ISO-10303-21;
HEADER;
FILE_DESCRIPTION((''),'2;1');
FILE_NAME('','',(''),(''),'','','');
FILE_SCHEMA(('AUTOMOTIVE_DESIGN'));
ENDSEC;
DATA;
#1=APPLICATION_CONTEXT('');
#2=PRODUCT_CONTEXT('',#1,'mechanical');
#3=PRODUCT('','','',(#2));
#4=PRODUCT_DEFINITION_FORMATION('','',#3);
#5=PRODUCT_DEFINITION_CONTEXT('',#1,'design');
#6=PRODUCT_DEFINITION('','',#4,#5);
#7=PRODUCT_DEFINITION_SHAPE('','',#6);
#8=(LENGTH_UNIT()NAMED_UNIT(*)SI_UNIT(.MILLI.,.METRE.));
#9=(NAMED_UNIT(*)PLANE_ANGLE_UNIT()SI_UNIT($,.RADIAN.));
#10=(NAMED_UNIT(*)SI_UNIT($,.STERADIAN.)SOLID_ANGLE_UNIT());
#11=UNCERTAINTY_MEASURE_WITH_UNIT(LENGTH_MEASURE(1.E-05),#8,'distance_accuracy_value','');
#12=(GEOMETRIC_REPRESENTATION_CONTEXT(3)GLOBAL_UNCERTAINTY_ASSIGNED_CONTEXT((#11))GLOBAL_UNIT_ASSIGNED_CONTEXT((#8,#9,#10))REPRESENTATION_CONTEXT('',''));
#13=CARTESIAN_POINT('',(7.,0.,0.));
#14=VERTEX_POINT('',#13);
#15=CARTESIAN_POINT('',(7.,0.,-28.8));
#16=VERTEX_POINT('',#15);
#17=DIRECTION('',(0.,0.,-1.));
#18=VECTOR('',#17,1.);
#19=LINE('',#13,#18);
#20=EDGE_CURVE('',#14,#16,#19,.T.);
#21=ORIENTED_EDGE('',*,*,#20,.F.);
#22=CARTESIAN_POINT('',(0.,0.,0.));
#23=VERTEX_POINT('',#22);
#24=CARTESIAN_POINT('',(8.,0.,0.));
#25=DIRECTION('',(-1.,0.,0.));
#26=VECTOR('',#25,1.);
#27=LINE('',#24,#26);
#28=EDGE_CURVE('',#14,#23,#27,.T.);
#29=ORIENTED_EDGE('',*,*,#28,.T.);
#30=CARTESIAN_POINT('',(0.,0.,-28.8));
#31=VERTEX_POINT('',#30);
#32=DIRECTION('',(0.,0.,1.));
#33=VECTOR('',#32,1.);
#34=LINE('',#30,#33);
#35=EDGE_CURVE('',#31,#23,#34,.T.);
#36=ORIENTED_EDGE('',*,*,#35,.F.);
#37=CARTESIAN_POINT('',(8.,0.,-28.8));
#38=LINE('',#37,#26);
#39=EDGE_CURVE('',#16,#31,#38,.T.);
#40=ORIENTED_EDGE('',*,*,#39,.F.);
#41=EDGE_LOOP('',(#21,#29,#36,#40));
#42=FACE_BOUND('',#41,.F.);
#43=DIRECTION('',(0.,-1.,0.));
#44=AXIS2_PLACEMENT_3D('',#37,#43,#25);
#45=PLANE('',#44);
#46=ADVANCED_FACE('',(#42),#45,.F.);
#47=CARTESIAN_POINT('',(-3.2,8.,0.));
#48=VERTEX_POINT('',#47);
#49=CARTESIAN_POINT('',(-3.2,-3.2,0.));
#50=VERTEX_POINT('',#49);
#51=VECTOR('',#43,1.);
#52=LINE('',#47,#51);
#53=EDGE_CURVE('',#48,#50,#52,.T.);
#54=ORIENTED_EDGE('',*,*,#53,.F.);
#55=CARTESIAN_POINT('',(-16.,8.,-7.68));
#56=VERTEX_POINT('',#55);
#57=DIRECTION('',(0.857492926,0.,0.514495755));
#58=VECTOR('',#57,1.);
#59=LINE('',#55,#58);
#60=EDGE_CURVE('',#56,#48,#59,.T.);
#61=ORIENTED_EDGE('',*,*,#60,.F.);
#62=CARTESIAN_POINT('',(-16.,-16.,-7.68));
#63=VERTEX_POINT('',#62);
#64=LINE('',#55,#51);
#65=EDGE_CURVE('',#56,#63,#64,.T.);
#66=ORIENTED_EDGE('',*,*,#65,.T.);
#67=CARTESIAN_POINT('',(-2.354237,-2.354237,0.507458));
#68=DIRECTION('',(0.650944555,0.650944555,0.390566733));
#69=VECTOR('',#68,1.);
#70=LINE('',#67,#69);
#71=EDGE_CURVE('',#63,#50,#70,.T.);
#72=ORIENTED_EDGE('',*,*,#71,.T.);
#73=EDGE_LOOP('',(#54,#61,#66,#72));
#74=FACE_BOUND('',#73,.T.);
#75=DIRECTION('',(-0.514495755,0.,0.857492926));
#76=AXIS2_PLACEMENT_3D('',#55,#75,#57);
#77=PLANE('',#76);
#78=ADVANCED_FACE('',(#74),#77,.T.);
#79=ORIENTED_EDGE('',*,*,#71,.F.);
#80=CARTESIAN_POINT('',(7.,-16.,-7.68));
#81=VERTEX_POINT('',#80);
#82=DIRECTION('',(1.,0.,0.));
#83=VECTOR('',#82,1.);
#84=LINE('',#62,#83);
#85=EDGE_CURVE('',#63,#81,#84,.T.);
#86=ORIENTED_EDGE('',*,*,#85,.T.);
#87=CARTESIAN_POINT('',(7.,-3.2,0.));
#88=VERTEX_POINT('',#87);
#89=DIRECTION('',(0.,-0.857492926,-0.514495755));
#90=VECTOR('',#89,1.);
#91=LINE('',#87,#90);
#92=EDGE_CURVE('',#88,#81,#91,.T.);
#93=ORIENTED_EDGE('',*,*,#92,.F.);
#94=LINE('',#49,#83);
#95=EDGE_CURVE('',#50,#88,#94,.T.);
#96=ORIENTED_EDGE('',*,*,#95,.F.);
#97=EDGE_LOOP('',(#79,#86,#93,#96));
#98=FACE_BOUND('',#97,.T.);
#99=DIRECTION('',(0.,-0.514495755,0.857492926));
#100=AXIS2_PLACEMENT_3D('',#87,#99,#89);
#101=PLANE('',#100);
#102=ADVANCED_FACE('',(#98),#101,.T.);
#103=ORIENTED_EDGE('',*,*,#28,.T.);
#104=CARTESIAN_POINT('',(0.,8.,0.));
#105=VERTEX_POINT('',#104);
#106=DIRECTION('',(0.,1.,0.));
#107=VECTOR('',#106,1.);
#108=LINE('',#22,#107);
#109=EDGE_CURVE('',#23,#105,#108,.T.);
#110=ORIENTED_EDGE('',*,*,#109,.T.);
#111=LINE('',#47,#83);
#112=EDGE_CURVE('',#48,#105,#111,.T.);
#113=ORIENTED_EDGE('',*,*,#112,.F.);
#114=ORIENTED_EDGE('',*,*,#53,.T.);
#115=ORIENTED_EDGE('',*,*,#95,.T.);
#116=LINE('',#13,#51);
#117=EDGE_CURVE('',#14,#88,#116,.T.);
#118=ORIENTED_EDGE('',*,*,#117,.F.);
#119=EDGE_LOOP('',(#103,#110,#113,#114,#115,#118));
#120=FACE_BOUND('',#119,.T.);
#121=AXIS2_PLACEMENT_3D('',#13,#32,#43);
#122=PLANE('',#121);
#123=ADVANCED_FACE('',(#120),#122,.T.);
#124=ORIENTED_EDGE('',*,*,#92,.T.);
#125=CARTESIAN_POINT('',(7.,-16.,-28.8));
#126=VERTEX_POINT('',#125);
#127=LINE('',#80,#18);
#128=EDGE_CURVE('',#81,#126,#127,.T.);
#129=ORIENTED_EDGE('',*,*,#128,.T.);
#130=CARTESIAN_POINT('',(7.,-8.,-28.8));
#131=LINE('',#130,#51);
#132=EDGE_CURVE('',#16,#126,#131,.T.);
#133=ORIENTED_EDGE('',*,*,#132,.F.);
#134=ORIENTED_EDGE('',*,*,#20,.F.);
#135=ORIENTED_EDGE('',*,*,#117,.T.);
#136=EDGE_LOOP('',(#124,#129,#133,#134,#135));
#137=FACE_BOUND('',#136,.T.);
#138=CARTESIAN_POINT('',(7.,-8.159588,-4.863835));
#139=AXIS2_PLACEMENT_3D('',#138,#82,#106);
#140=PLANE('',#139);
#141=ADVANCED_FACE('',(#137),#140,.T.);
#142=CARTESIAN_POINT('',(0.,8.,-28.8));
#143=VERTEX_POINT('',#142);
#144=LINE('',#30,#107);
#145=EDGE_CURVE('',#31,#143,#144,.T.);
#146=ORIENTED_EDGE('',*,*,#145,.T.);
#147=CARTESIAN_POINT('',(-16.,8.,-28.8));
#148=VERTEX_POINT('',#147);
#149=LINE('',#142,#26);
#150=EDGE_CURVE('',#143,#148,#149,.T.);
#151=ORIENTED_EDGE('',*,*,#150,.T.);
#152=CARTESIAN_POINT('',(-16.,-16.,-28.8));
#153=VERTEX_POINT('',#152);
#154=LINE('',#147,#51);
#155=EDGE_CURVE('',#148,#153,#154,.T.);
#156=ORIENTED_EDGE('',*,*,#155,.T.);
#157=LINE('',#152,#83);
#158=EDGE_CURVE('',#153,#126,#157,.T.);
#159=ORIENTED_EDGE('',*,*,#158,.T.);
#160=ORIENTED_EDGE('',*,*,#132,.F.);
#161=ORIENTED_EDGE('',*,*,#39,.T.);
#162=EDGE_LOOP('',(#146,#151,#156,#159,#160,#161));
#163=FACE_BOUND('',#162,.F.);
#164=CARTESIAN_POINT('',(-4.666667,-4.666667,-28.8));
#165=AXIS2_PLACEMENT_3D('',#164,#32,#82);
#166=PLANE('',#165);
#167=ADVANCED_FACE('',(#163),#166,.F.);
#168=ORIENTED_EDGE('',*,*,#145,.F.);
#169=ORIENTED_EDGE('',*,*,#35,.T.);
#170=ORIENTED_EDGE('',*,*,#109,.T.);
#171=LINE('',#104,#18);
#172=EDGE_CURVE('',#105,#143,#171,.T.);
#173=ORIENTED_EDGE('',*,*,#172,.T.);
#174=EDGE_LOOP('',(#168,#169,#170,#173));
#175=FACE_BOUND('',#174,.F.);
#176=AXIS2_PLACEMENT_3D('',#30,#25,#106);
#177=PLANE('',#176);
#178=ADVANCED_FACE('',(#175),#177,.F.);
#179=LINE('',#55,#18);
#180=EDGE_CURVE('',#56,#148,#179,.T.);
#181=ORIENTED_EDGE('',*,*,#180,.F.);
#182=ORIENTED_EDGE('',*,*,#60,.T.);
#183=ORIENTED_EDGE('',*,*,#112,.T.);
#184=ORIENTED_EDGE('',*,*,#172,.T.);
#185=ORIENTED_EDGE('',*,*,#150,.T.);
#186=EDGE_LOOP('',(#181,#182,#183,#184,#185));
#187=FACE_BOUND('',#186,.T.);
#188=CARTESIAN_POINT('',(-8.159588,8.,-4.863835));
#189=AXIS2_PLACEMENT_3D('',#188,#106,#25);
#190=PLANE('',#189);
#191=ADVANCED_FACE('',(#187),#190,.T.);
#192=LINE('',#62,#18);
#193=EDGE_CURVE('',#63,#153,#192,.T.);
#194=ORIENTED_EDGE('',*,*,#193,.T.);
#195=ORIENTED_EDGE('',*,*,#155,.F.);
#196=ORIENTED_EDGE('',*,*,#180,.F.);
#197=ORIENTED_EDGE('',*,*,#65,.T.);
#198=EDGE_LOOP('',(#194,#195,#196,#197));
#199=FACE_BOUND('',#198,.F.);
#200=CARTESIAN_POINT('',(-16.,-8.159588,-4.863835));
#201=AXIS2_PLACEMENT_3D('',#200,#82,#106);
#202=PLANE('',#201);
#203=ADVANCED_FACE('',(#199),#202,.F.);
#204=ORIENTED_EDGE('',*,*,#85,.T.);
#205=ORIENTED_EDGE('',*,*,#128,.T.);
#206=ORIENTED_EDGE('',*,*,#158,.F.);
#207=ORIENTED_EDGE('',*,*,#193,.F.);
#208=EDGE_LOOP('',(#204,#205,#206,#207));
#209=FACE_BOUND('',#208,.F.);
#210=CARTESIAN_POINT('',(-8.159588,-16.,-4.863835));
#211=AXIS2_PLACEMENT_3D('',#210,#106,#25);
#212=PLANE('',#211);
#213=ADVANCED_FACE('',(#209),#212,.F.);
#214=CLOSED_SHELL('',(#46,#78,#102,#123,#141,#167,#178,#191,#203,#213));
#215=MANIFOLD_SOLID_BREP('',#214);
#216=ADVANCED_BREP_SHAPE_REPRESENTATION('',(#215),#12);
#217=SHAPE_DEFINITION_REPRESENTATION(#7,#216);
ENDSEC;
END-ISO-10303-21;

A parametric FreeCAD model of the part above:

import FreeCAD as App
import Part
import Sketcher

V = App.Vector
Q = App.Units.Quantity

doc = App.newDocument("Part")
body = doc.addObject("PartDesign::Body", "Body")

# Sketch on XY plane
sketch1 = body.newObject("Sketcher::SketchObject", "Sketch")
sketch1.AttachmentSupport = (doc.getObject("XY_Plane"), [""])
sketch1.MapMode = "FlatFace"
sketch1.AttachmentOffset = App.Placement(V(0, 0, -28.8), App.Rotation())
sketch1.addGeometry(Part.LineSegment(V(0, 0, 0), V(0, 8, 0)), False)
sketch1.addGeometry(Part.LineSegment(V(0, 8, 0), V(-16, 8, 0)), False)
sketch1.addGeometry(Part.LineSegment(V(-16, 8, 0), V(-16, -16, 0)), False)
sketch1.addGeometry(Part.LineSegment(V(-16, -16, 0), V(8, -16, 0)), False)
sketch1.addGeometry(Part.LineSegment(V(8, -16, 0), V(8, 0, 0)), False)
sketch1.addGeometry(Part.LineSegment(V(8, 0, 0), V(0, 0, 0)), False)
sketch1.addConstraint(Sketcher.Constraint("Coincident", 0, 2, 1, 1))
sketch1.addConstraint(Sketcher.Constraint("Coincident", 1, 2, 2, 1))
sketch1.addConstraint(Sketcher.Constraint("Coincident", 2, 2, 3, 1))
sketch1.addConstraint(Sketcher.Constraint("Coincident", 3, 2, 4, 1))
sketch1.addConstraint(Sketcher.Constraint("Coincident", 4, 2, 5, 1))
sketch1.addConstraint(Sketcher.Constraint("Coincident", 5, 2, 0, 1))
sketch1.addConstraint(Sketcher.Constraint("Vertical", 0))
sketch1.addConstraint(Sketcher.Constraint("Horizontal", 1))
sketch1.addConstraint(Sketcher.Constraint("Vertical", 2))
sketch1.addConstraint(Sketcher.Constraint("Horizontal", 3))
sketch1.addConstraint(Sketcher.Constraint("Vertical", 4))
sketch1.addConstraint(Sketcher.Constraint("Horizontal", 5))
sketch1.addConstraint(Sketcher.Constraint("Coincident", 5, 2, -1, 1))
sketch1.addConstraint(Sketcher.Constraint("Equal", 5, 0))
sketch1.addConstraint(Sketcher.Constraint("Equal", 3, 2))
sketch1.addConstraint(Sketcher.Constraint("DistanceX", 1, 2, 1, 1, Q("16 mm")))
sketch1.addConstraint(Sketcher.Constraint("DistanceX", 3, 1, 3, 2, Q("24 mm")))
pad1 = body.newObject("PartDesign::Pad", "Pad")
pad1.Profile = sketch1
pad1.Length = 28.8

# Sketch on YZ plane
sketch2 = body.newObject("Sketcher::SketchObject", "Sketch001")
sketch2.AttachmentSupport = (doc.getObject("YZ_Plane"), [""])
sketch2.MapMode = "FlatFace"
sketch2.AttachmentOffset = App.Placement(V(0, 0, 8), App.Rotation())
sketch2.addGeometry(Part.LineSegment(V(-16, -10, 0), V(0, 0, 0)), False)
sketch2.addGeometry(Part.LineSegment(V(0, 0, 0), V(-16, 0, 0)), False)
sketch2.addGeometry(Part.LineSegment(V(-16, 0, 0), V(-16, -10, 0)), False)
sketch2.addConstraint(Sketcher.Constraint("Coincident", 0, 2, 1, 1))
sketch2.addConstraint(Sketcher.Constraint("Coincident", 1, 2, 2, 1))
sketch2.addConstraint(Sketcher.Constraint("Coincident", 2, 2, 0, 1))
sketch2.addConstraint(Sketcher.Constraint("Horizontal", 1))
sketch2.addConstraint(Sketcher.Constraint("Vertical", 2))
sketch2.addConstraint(Sketcher.Constraint("Coincident", 0, 2, -1, 1))
sketch2.addConstraint(Sketcher.Constraint("DistanceX", 1, 2, 1, 1, Q("16 mm")))
sketch2.addConstraint(Sketcher.Constraint("DistanceY", 2, 2, 2, 1, Q("9.6 mm")))
pocket1 = body.newObject("PartDesign::Pocket", "Pocket")
pocket1.Profile = sketch2
pocket1.Length = 24

# Sketch on XZ plane
sketch3 = body.newObject("Sketcher::SketchObject", "Sketch002")
sketch3.AttachmentSupport = (doc.getObject("XZ_Plane"), [""])
sketch3.MapMode = "FlatFace"
sketch3.AttachmentOffset = App.Placement(V(0, 0, -8), App.Rotation())
sketch3.addGeometry(Part.LineSegment(V(0, 0, 0), V(-16, -10, 0)), False)
sketch3.addGeometry(Part.LineSegment(V(-16, -10, 0), V(-16, 0, 0)), False)
sketch3.addGeometry(Part.LineSegment(V(-16, 0, 0), V(0, 0, 0)), False)
sketch3.addConstraint(Sketcher.Constraint("Coincident", 0, 2, 1, 1))
sketch3.addConstraint(Sketcher.Constraint("Coincident", 1, 2, 2, 1))
sketch3.addConstraint(Sketcher.Constraint("Coincident", 2, 2, 0, 1))
sketch3.addConstraint(Sketcher.Constraint("Vertical", 1))
sketch3.addConstraint(Sketcher.Constraint("Horizontal", 2))
sketch3.addConstraint(Sketcher.Constraint("Coincident", 2, 2, -1, 1))
sketch3.addConstraint(Sketcher.Constraint("DistanceX", 2, 1, 2, 2, Q("16 mm")))
sketch3.addConstraint(Sketcher.Constraint("DistanceY", 1, 1, 1, 2, Q("9.6 mm")))
pocket2 = body.newObject("PartDesign::Pocket", "Pocket001")
pocket2.Profile = sketch3
pocket2.Length = 24
pocket2.Reversed = True

# Sketch on XY plane
sketch4 = body.newObject("Sketcher::SketchObject", "Sketch003")
sketch4.AttachmentSupport = (doc.getObject("XY_Plane"), [""])
sketch4.MapMode = "FlatFace"
sketch4.AttachmentOffset = App.Placement(V(0, 0, -28.8), App.Rotation())
sketch4.addGeometry(Part.LineSegment(V(7, -16, 0), V(7, 0, 0)), False)
sketch4.addGeometry(Part.LineSegment(V(7, 0, 0), V(8, 0, 0)), False)
sketch4.addGeometry(Part.LineSegment(V(8, 0, 0), V(8, -16, 0)), False)
sketch4.addGeometry(Part.LineSegment(V(8, -16, 0), V(7, -16, 0)), False)
sketch4.addConstraint(Sketcher.Constraint("Coincident", 0, 2, 1, 1))
sketch4.addConstraint(Sketcher.Constraint("Coincident", 1, 2, 2, 1))
sketch4.addConstraint(Sketcher.Constraint("Coincident", 2, 2, 3, 1))
sketch4.addConstraint(Sketcher.Constraint("Coincident", 3, 2, 0, 1))
sketch4.addConstraint(Sketcher.Constraint("Vertical", 0))
sketch4.addConstraint(Sketcher.Constraint("Horizontal", 1))
sketch4.addConstraint(Sketcher.Constraint("Vertical", 2))
sketch4.addConstraint(Sketcher.Constraint("Horizontal", 3))
sketch4.addConstraint(Sketcher.Constraint("PointOnObject", 0, 2, -1))
sketch4.addConstraint(Sketcher.Constraint("DistanceX", 1, 1, 1, 2, Q("1 mm")))
sketch4.addConstraint(Sketcher.Constraint("DistanceY", 0, 1, 0, 2, Q("16 mm")))
sketch4.addConstraint(Sketcher.Constraint("DistanceX", -1, 1, 0, 2, Q("7 mm")))
pocket3 = body.newObject("PartDesign::Pocket", "Pocket002")
pocket3.Profile = sketch4
pocket3.Length = 30
pocket3.Reversed = True

# Sketch on YZ plane
sketch5 = body.newObject("Sketcher::SketchObject", "Sketch004")
sketch5.AttachmentSupport = (doc.getObject("YZ_Plane"), [""])
sketch5.MapMode = "FlatFace"
sketch5.AttachmentOffset = App.Placement(V(0, 0, 7), App.Rotation())
sketch5.addGeometry(Part.LineSegment(V(0, 0, 0), V(-3.2, 0, 0)), False)
sketch5.addGeometry(Part.LineSegment(V(-3.2, 0, 0), V(-16, -7.7, 0)), False)
sketch5.addGeometry(Part.LineSegment(V(-16, -7.7, 0), V(-16, -10.9, 0)), False)
sketch5.addGeometry(Part.LineSegment(V(-16, -10.9, 0), V(-3.2, -3.2, 0)), False)
sketch5.addGeometry(Part.LineSegment(V(-3.2, -3.2, 0), V(0, -3.2, 0)), False)
sketch5.addGeometry(Part.LineSegment(V(0, -3.2, 0), V(0, 0, 0)), False)
sketch5.addConstraint(Sketcher.Constraint("Coincident", 0, 2, 1, 1))
sketch5.addConstraint(Sketcher.Constraint("Coincident", 1, 2, 2, 1))
sketch5.addConstraint(Sketcher.Constraint("Coincident", 2, 2, 3, 1))
sketch5.addConstraint(Sketcher.Constraint("Coincident", 3, 2, 4, 1))
sketch5.addConstraint(Sketcher.Constraint("Coincident", 4, 2, 5, 1))
sketch5.addConstraint(Sketcher.Constraint("Coincident", 5, 2, 0, 1))
sketch5.addConstraint(Sketcher.Constraint("Horizontal", 0))
sketch5.addConstraint(Sketcher.Constraint("Vertical", 2))
sketch5.addConstraint(Sketcher.Constraint("Horizontal", 4))
sketch5.addConstraint(Sketcher.Constraint("Vertical", 5))
sketch5.addConstraint(Sketcher.Constraint("Coincident", 5, 2, -1, 1))
sketch5.addConstraint(Sketcher.Constraint("Parallel", 1, 3))
sketch5.addConstraint(Sketcher.Constraint("Vertical", 0, 2, 3, 2))
sketch5.addConstraint(Sketcher.Constraint("Equal", 4, 2))
sketch5.addConstraint(Sketcher.Constraint("DistanceX", 0, 2, 0, 1, Q("3.2 mm")))
sketch5.addConstraint(Sketcher.Constraint("DistanceX", 1, 2, -1, 1, Q("16 mm")))
sketch5.addConstraint(Sketcher.Constraint("DistanceY", 1, 2, -1, 1, Q("7.68 mm")))
pad2 = body.newObject("PartDesign::Pad", "Pad001")
pad2.Profile = sketch5
pad2.Length = 23
pad2.Reversed = True

# Sketch on XZ plane
sketch6 = body.newObject("Sketcher::SketchObject", "Sketch005")
sketch6.AttachmentSupport = (doc.getObject("XZ_Plane"), [""])
sketch6.MapMode = "FlatFace"
sketch6.AttachmentOffset = App.Placement(V(0, 0, -8), App.Rotation())
sketch6.addGeometry(Part.LineSegment(V(0, 0, 0), V(0, -3.2, 0)), False)
sketch6.addGeometry(Part.LineSegment(V(0, -3.2, 0), V(-3.2, -3.2, 0)), False)
sketch6.addGeometry(Part.LineSegment(V(-3.2, -3.2, 0), V(-16, -10.9, 0)), False)
sketch6.addGeometry(Part.LineSegment(V(-16, -10.9, 0), V(-16, -7.7, 0)), False)
sketch6.addGeometry(Part.LineSegment(V(-16, -7.7, 0), V(-3.2, 0, 0)), False)
sketch6.addGeometry(Part.LineSegment(V(-3.2, 0, 0), V(0, 0, 0)), False)
sketch6.addConstraint(Sketcher.Constraint("Coincident", 0, 2, 1, 1))
sketch6.addConstraint(Sketcher.Constraint("Coincident", 1, 2, 2, 1))
sketch6.addConstraint(Sketcher.Constraint("Coincident", 2, 2, 3, 1))
sketch6.addConstraint(Sketcher.Constraint("Coincident", 3, 2, 4, 1))
sketch6.addConstraint(Sketcher.Constraint("Coincident", 4, 2, 5, 1))
sketch6.addConstraint(Sketcher.Constraint("Coincident", 5, 2, 0, 1))
sketch6.addConstraint(Sketcher.Constraint("Vertical", 0))
sketch6.addConstraint(Sketcher.Constraint("Horizontal", 1))
sketch6.addConstraint(Sketcher.Constraint("Vertical", 3))
sketch6.addConstraint(Sketcher.Constraint("Horizontal", 5))
sketch6.addConstraint(Sketcher.Constraint("Coincident", 5, 2, -1, 1))
sketch6.addConstraint(Sketcher.Constraint("Parallel", 2, 4))
sketch6.addConstraint(Sketcher.Constraint("Vertical", 1, 2, 4, 2))
sketch6.addConstraint(Sketcher.Constraint("Equal", 5, 0))
sketch6.addConstraint(Sketcher.Constraint("DistanceX", 1, 2, 1, 1, Q("3.2 mm")))
sketch6.addConstraint(Sketcher.Constraint("DistanceX", 2, 2, -1, 1, Q("16 mm")))
sketch6.addConstraint(Sketcher.Constraint("DistanceY", 2, 2, -1, 1, Q("10.88 mm")))
pad3 = body.newObject("PartDesign::Pad", "Pad002")
pad3.Profile = sketch6
pad3.Length = 24

# Sketch on XZ plane
sketch7 = body.newObject("Sketcher::SketchObject", "Sketch006")
sketch7.AttachmentSupport = (doc.getObject("XZ_Plane"), [""])
sketch7.MapMode = "FlatFace"
sketch7.AttachmentOffset = App.Placement(V(0, 0, -8), App.Rotation())
sketch7.addGeometry(Part.LineSegment(V(-3, 0, 0), V(-16, -8, 0)), False)
sketch7.addGeometry(Part.LineSegment(V(-16, -8, 0), V(-16, 0, 0)), False)
sketch7.addGeometry(Part.LineSegment(V(-16, 0, 0), V(-3, 0, 0)), False)
sketch7.addConstraint(Sketcher.Constraint("Coincident", 0, 2, 1, 1))
sketch7.addConstraint(Sketcher.Constraint("Coincident", 1, 2, 2, 1))
sketch7.addConstraint(Sketcher.Constraint("Coincident", 2, 2, 0, 1))
sketch7.addConstraint(Sketcher.Constraint("Vertical", 1))
sketch7.addConstraint(Sketcher.Constraint("Horizontal", 2))
sketch7.addConstraint(Sketcher.Constraint("PointOnObject", 1, 2, -1))
sketch7.addConstraint(Sketcher.Constraint("DistanceX", 2, 1, 2, 2, Q("12.8 mm")))
sketch7.addConstraint(Sketcher.Constraint("DistanceX", 0, 2, -1, 1, Q("16 mm")))
sketch7.addConstraint(Sketcher.Constraint("DistanceY", 1, 1, 1, 2, Q("7.68 mm")))
pocket4 = body.newObject("PartDesign::Pocket", "Pocket003")
pocket4.Profile = sketch7
pocket4.Length = 24
pocket4.Reversed = True

# Sketch on YZ plane
sketch8 = body.newObject("Sketcher::SketchObject", "Sketch007")
sketch8.AttachmentSupport = (doc.getObject("YZ_Plane"), [""])
sketch8.MapMode = "FlatFace"
sketch8.AttachmentOffset = App.Placement(V(0, 0, 7), App.Rotation())
sketch8.addGeometry(Part.LineSegment(V(-16, -8, 0), V(-3, 0, 0)), False)
sketch8.addGeometry(Part.LineSegment(V(-3, 0, 0), V(-16, 0, 0)), False)
sketch8.addGeometry(Part.LineSegment(V(-16, 0, 0), V(-16, -8, 0)), False)
sketch8.addConstraint(Sketcher.Constraint("Coincident", 0, 2, 1, 1))
sketch8.addConstraint(Sketcher.Constraint("Coincident", 1, 2, 2, 1))
sketch8.addConstraint(Sketcher.Constraint("Coincident", 2, 2, 0, 1))
sketch8.addConstraint(Sketcher.Constraint("Horizontal", 1))
sketch8.addConstraint(Sketcher.Constraint("Vertical", 2))
sketch8.addConstraint(Sketcher.Constraint("PointOnObject", 0, 2, -1))
sketch8.addConstraint(Sketcher.Constraint("DistanceX", 1, 2, 1, 1, Q("12.8 mm")))
sketch8.addConstraint(Sketcher.Constraint("DistanceX", 1, 2, -1, 1, Q("16 mm")))
sketch8.addConstraint(Sketcher.Constraint("DistanceY", 2, 2, 2, 1, Q("7.68 mm")))
pocket5 = body.newObject("PartDesign::Pocket", "Pocket004")
pocket5.Profile = sketch8
pocket5.Length = 23

doc.recompute()
